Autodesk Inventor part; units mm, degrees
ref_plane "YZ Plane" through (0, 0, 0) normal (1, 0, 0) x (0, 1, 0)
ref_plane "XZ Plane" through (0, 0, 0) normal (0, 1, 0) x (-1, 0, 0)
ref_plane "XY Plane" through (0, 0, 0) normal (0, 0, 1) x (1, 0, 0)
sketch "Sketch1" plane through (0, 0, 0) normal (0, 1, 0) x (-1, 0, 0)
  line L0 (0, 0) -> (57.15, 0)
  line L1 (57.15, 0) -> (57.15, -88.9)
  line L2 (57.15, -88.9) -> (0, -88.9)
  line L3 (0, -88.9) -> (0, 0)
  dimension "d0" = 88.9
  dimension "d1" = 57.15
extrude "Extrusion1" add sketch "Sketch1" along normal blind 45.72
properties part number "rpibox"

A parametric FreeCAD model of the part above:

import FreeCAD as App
import Part
import Sketcher

V = App.Vector
Q = App.Units.Quantity

doc = App.newDocument("Part")
params = doc.addObject("Spreadsheet::Sheet", "Params")
for row, (alias, value) in enumerate([
    ("sketch1_height", "3.5 in"),
    ("sketch1_width", "2.25 in"),
    ("pad1_length", "1.8 in"),
], start=1):
    params.set(f"A{row}", alias)
    params.set(f"B{row}", "=" + value)
    params.setAlias(f"B{row}", alias)

body = doc.addObject("PartDesign::Body", "Body")

# Sketch on XZ plane
sketch1 = body.newObject("Sketcher::SketchObject", "Sketch")
sketch1.AttachmentSupport = (doc.getObject("XZ_Plane"), [""])
sketch1.MapMode = "FlatFace"
sketch1.addGeometry([
    Part.LineSegment(V(-57, 0, 0), V(0, 0, 0)),
    Part.LineSegment(V(0, 0, 0), V(0, -89, 0)),
    Part.LineSegment(V(0, -89, 0), V(-57, -89, 0)),
    Part.LineSegment(V(-57, -89, 0), V(-57, 0, 0)),
], False)
sketch1.addConstraint([
    Sketcher.Constraint("Coincident", 0, 2, 1, 1),
    Sketcher.Constraint("Coincident", 1, 2, 2, 1),
    Sketcher.Constraint("Coincident", 2, 2, 3, 1),
    Sketcher.Constraint("Coincident", 3, 2, 0, 1),
    Sketcher.Constraint("Horizontal", 0),
    Sketcher.Constraint("Vertical", 1),
    Sketcher.Constraint("Horizontal", 2),
    Sketcher.Constraint("Vertical", 3),
    Sketcher.Constraint("Coincident", 0, 2, -1, 1),
    Sketcher.Constraint("DistanceY", 1, 2, 1, 1, Q("3.5 in")),
    Sketcher.Constraint("DistanceX", 0, 1, 0, 2, Q("2.25 in")),
])
sketch1.setExpression("Constraints[9]", "Params.sketch1_height")
sketch1.setExpression("Constraints[10]", "Params.sketch1_width")
pad1 = body.newObject("PartDesign::Pad", "Pad")
pad1.Profile = sketch1
pad1.setExpression("Length", "Params.pad1_length")
pad1.Reversed = True

doc.recompute()
